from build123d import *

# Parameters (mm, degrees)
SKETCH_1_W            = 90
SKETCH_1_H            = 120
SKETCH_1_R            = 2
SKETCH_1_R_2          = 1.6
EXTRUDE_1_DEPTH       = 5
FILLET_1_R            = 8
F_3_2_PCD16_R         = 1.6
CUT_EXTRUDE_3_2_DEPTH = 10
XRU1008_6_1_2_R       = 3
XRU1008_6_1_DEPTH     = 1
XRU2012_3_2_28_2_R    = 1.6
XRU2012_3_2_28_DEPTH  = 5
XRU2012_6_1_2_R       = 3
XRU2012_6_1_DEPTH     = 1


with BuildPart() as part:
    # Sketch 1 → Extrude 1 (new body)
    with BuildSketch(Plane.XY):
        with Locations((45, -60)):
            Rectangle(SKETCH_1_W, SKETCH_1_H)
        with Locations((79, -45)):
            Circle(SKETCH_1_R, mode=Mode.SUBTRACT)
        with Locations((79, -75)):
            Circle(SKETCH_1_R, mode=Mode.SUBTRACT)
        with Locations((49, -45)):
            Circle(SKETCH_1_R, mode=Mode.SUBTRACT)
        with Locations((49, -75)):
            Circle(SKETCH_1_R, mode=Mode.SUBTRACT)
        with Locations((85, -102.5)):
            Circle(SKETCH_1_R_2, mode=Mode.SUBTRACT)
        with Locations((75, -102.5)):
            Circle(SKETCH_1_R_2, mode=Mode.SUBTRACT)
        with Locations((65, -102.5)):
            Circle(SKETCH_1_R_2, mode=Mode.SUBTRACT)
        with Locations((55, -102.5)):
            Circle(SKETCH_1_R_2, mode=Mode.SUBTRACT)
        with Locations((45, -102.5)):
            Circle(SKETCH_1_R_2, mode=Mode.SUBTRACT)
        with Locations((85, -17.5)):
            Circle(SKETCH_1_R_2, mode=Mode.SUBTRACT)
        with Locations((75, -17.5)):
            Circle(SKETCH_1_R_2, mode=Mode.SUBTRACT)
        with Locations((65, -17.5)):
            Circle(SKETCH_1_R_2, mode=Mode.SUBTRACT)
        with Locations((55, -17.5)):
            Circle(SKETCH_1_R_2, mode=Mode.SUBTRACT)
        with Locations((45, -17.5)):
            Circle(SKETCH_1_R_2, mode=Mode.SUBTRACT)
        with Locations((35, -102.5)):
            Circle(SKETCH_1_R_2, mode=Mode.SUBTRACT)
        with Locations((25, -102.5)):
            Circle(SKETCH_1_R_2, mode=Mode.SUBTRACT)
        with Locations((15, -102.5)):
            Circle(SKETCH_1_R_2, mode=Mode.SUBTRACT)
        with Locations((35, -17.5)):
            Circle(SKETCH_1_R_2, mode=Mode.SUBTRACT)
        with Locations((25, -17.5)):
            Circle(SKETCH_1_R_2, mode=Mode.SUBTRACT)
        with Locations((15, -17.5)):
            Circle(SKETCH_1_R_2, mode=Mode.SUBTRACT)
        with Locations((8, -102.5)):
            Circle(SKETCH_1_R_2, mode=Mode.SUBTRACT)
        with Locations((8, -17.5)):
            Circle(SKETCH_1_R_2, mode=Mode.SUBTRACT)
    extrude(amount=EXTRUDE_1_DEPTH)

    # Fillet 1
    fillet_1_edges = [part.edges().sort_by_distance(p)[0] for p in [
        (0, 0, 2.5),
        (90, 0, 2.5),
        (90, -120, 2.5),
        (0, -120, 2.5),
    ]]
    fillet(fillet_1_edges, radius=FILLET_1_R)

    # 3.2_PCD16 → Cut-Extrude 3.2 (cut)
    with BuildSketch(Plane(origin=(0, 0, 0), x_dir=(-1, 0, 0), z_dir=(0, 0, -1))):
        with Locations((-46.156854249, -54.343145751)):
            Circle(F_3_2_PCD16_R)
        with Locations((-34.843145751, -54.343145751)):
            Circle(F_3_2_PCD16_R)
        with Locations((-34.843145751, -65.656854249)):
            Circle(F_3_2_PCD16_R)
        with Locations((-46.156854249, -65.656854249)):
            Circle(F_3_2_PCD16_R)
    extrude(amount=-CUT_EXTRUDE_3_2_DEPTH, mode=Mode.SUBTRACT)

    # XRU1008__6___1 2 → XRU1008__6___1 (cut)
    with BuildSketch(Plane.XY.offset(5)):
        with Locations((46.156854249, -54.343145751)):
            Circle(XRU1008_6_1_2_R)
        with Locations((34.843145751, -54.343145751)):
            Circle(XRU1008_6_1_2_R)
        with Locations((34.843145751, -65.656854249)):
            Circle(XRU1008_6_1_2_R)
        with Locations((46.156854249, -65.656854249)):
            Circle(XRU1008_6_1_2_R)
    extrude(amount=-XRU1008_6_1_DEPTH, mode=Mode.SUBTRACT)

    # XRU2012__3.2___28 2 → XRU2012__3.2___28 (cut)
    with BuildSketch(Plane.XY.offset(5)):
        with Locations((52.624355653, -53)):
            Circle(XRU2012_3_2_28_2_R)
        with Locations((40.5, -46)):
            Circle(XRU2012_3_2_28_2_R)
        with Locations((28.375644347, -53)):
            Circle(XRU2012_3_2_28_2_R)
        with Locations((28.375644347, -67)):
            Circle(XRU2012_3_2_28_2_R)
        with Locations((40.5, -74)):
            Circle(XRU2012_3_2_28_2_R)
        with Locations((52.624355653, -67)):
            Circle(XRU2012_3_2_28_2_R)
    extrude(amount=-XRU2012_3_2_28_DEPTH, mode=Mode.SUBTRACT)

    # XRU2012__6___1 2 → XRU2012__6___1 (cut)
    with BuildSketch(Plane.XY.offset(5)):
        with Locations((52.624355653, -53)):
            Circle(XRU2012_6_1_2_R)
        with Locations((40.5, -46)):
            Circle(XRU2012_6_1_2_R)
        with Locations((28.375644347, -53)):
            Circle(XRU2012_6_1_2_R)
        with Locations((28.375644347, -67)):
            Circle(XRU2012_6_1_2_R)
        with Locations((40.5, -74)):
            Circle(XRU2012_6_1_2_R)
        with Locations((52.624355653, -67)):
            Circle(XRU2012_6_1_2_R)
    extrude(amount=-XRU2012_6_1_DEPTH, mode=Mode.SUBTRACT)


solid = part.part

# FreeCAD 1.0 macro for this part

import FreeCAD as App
import Part
import Sketcher
Q = App.Units.Quantity


def edges_at(feature, points):
    """Names of the edges that pass closest to the given points."""
    edges = feature.Shape.Edges
    near = lambda p: min(range(len(edges)), key=lambda i: edges[i].distToShape(Part.Vertex(*p))[0])
    return sorted({f"Edge{near(p) + 1}" for p in points})

doc = App.newDocument("Part")
body = doc.addObject("PartDesign::Body", "Body")

sketch1 = body.newObject("Sketcher::SketchObject", "Sketch")
sketch1.AttachmentSupport = (doc.getObject("XY_Plane"), [""])
sketch1.MapMode = "FlatFace"
sketch1.addGeometry(Part.LineSegment(App.Vector(0, 0, 0), App.Vector(0, -120, 0)), False)
sketch1.addGeometry(Part.LineSegment(App.Vector(0, -120, 0), App.Vector(90, -120, 0)), False)
sketch1.addGeometry(Part.LineSegment(App.Vector(90, -120, 0), App.Vector(90, 0, 0)), False)
sketch1.addGeometry(Part.LineSegment(App.Vector(90, 0, 0), App.Vector(0, 0, 0)), False)
sketch1.addGeometry(Part.Circle(App.Vector(8, -102.5, 0), App.Vector(0, 0, 1), 1.6), False)
sketch1.addGeometry(Part.Circle(App.Vector(15, -102.5, 0), App.Vector(0, 0, 1), 1.6), False)
sketch1.addGeometry(Part.Circle(App.Vector(25, -102.5, 0), App.Vector(0, 0, 1), 1.6), False)
sketch1.addGeometry(Part.Circle(App.Vector(35, -102.5, 0), App.Vector(0, 0, 1), 1.6), False)
sketch1.addGeometry(Part.Circle(App.Vector(45, -102.5, 0), App.Vector(0, 0, 1), 1.6), False)
sketch1.addGeometry(Part.Circle(App.Vector(55, -102.5, 0), App.Vector(0, 0, 1), 1.6), False)
sketch1.addGeometry(Part.Circle(App.Vector(65, -102.5, 0), App.Vector(0, 0, 1), 1.6), False)
sketch1.addGeometry(Part.Circle(App.Vector(75, -102.5, 0), App.Vector(0, 0, 1), 1.6), False)
sketch1.addGeometry(Part.Circle(App.Vector(85, -102.5, 0), App.Vector(0, 0, 1), 1.6), False)
sketch1.addGeometry(Part.Circle(App.Vector(49, -75, 0), App.Vector(0, 0, 1), 2), False)
sketch1.addGeometry(Part.Circle(App.Vector(79, -75, 0), App.Vector(0, 0, 1), 2), False)
sketch1.addGeometry(Part.Circle(App.Vector(8, -17.5, 0), App.Vector(0, 0, 1), 1.6), False)
sketch1.addGeometry(Part.Circle(App.Vector(15, -17.5, 0), App.Vector(0, 0, 1), 1.6), False)
sketch1.addGeometry(Part.Circle(App.Vector(25, -17.5, 0), App.Vector(0, 0, 1), 1.6), False)
sketch1.addGeometry(Part.Circle(App.Vector(35, -17.5, 0), App.Vector(0, 0, 1), 1.6), False)
sketch1.addGeometry(Part.Circle(App.Vector(45, -17.5, 0), App.Vector(0, 0, 1), 1.6), False)
sketch1.addGeometry(Part.Circle(App.Vector(49, -45, 0), App.Vector(0, 0, 1), 2), False)
sketch1.addGeometry(Part.Circle(App.Vector(79, -45, 0), App.Vector(0, 0, 1), 2), False)
sketch1.addGeometry(Part.Circle(App.Vector(55, -17.5, 0), App.Vector(0, 0, 1), 1.6), False)
sketch1.addGeometry(Part.Circle(App.Vector(65, -17.5, 0), App.Vector(0, 0, 1), 1.6), False)
sketch1.addGeometry(Part.Circle(App.Vector(75, -17.5, 0), App.Vector(0, 0, 1), 1.6), False)
sketch1.addGeometry(Part.Circle(App.Vector(85, -17.5, 0), App.Vector(0, 0, 1), 1.6), False)
sketch1.addConstraint(Sketcher.Constraint("Coincident", 0, 2, 1, 1))
sketch1.addConstraint(Sketcher.Constraint("Coincident", 1, 2, 2, 1))
sketch1.addConstraint(Sketcher.Constraint("Coincident", 2, 2, 3, 1))
sketch1.addConstraint(Sketcher.Constraint("Coincident", 3, 2, 0, 1))
sketch1.addConstraint(Sketcher.Constraint("Vertical", 0))
sketch1.addConstraint(Sketcher.Constraint("Horizontal", 1))
sketch1.addConstraint(Sketcher.Constraint("Vertical", 2))
sketch1.addConstraint(Sketcher.Constraint("Horizontal", 3))
sketch1.addConstraint(Sketcher.Constraint("Coincident", 3, 2, -1, 1))
sketch1.addConstraint(Sketcher.Constraint("Equal", 4, 5))
sketch1.addConstraint(Sketcher.Constraint("Equal", 5, 6))
sketch1.addConstraint(Sketcher.Constraint("Equal", 6, 7))
sketch1.addConstraint(Sketcher.Constraint("Equal", 7, 8))
sketch1.addConstraint(Sketcher.Constraint("Equal", 8, 9))
sketch1.addConstraint(Sketcher.Constraint("Equal", 9, 10))
sketch1.addConstraint(Sketcher.Constraint("Equal", 10, 11))
sketch1.addConstraint(Sketcher.Constraint("Equal", 11, 12))
sketch1.addConstraint(Sketcher.Constraint("Equal", 13, 14))
sketch1.addConstraint(Sketcher.Constraint("Equal", 12, 15))
sketch1.addConstraint(Sketcher.Constraint("Equal", 15, 16))
sketch1.addConstraint(Sketcher.Constraint("Equal", 16, 17))
sketch1.addConstraint(Sketcher.Constraint("Equal", 17, 18))
sketch1.addConstraint(Sketcher.Constraint("Equal", 18, 19))
sketch1.addConstraint(Sketcher.Constraint("Equal", 14, 20))
sketch1.addConstraint(Sketcher.Constraint("Equal", 20, 21))
sketch1.addConstraint(Sketcher.Constraint("Equal", 19, 22))
sketch1.addConstraint(Sketcher.Constraint("Equal", 22, 23))
sketch1.addConstraint(Sketcher.Constraint("Equal", 23, 24))
sketch1.addConstraint(Sketcher.Constraint("Equal", 24, 25))
sketch1.addConstraint(Sketcher.Constraint("Horizontal", 4, 3, 5, 3))
sketch1.addConstraint(Sketcher.Constraint("Horizontal", 5, 3, 6, 3))
sketch1.addConstraint(Sketcher.Constraint("Horizontal", 6, 3, 7, 3))
sketch1.addConstraint(Sketcher.Constraint("Horizontal", 7, 3, 8, 3))
sketch1.addConstraint(Sketcher.Constraint("Horizontal", 8, 3, 9, 3))
sketch1.addConstraint(Sketcher.Constraint("Horizontal", 9, 3, 10, 3))
sketch1.addConstraint(Sketcher.Constraint("Horizontal", 10, 3, 11, 3))
sketch1.addConstraint(Sketcher.Constraint("Horizontal", 11, 3, 12, 3))
sketch1.addConstraint(Sketcher.Constraint("Horizontal", 13, 3, 14, 3))
sketch1.addConstraint(Sketcher.Constraint("Horizontal", 15, 3, 16, 3))
sketch1.addConstraint(Sketcher.Constraint("Horizontal", 16, 3, 17, 3))
sketch1.addConstraint(Sketcher.Constraint("Horizontal", 17, 3, 18, 3))
sketch1.addConstraint(Sketcher.Constraint("Horizontal", 18, 3, 19, 3))
sketch1.addConstraint(Sketcher.Constraint("Horizontal", 20, 3, 21, 3))
sketch1.addConstraint(Sketcher.Constraint("Horizontal", 19, 3, 22, 3))
sketch1.addConstraint(Sketcher.Constraint("Horizontal", 22, 3, 23, 3))
sketch1.addConstraint(Sketcher.Constraint("Horizontal", 23, 3, 24, 3))
sketch1.addConstraint(Sketcher.Constraint("Horizontal", 24, 3, 25, 3))
sketch1.addConstraint(Sketcher.Constraint("Vertical", 4, 3, 15, 3))
sketch1.addConstraint(Sketcher.Constraint("Vertical", 5, 3, 16, 3))
sketch1.addConstraint(Sketcher.Constraint("Vertical", 6, 3, 17, 3))
sketch1.addConstraint(Sketcher.Constraint("Vertical", 7, 3, 18, 3))
sketch1.addConstraint(Sketcher.Constraint("Vertical", 8, 3, 19, 3))
sketch1.addConstraint(Sketcher.Constraint("Vertical", 13, 3, 20, 3))
sketch1.addConstraint(Sketcher.Constraint("Vertical", 14, 3, 21, 3))
sketch1.addConstraint(Sketcher.Constraint("Vertical", 9, 3, 22, 3))
sketch1.addConstraint(Sketcher.Constraint("Vertical", 10, 3, 23, 3))
sketch1.addConstraint(Sketcher.Constraint("Vertical", 11, 3, 24, 3))
sketch1.addConstraint(Sketcher.Constraint("Vertical", 12, 3, 25, 3))
sketch1.addConstraint(Sketcher.Constraint("Diameter", 13, Q("4 mm")))
sketch1.addConstraint(Sketcher.Constraint("Diameter", 4, Q("3.2 mm")))
sketch1.addConstraint(Sketcher.Constraint("DistanceX", 1, 1, 1, 2, Q("90 mm")))
sketch1.addConstraint(Sketcher.Constraint("DistanceY", 0, 2, 0, 1, Q("120 mm")))
sketch1.addConstraint(Sketcher.Constraint("DistanceX", -1, 1, 4, 3, Q("8 mm")))
sketch1.addConstraint(Sketcher.Constraint("DistanceX", -1, 1, 5, 3, Q("15 mm")))
sketch1.addConstraint(Sketcher.Constraint("DistanceX", -1, 1, 6, 3, Q("25 mm")))
sketch1.addConstraint(Sketcher.Constraint("DistanceX", -1, 1, 7, 3, Q("35 mm")))
sketch1.addConstraint(Sketcher.Constraint("DistanceX", -1, 1, 8, 3, Q("45 mm")))
sketch1.addConstraint(Sketcher.Constraint("DistanceX", -1, 1, 9, 3, Q("55 mm")))
sketch1.addConstraint(Sketcher.Constraint("DistanceX", -1, 1, 10, 3, Q("65 mm")))
sketch1.addConstraint(Sketcher.Constraint("DistanceX", -1, 1, 11, 3, Q("75 mm")))
sketch1.addConstraint(Sketcher.Constraint("DistanceX", -1, 1, 12, 3, Q("85 mm")))
sketch1.addConstraint(Sketcher.Constraint("DistanceX", -1, 1, 13, 3, Q("49 mm")))
sketch1.addConstraint(Sketcher.Constraint("DistanceY", 13, 3, -1, 1, Q("75 mm")))
sketch1.addConstraint(Sketcher.Constraint("DistanceX", -1, 1, 14, 3, Q("79 mm")))
sketch1.addConstraint(Sketcher.Constraint("DistanceY", 20, 3, -1, 1, Q("45 mm")))
sketch1.addConstraint(Sketcher.Constraint("DistanceY", 4, 3, 15, 3, Q("85 mm")))
sketch1.addConstraint(Sketcher.Constraint("DistanceY", 4, 3, -1, 1, Q("102.5 mm")))
pad1 = body.newObject("PartDesign::Pad", "Pad")
pad1.Profile = sketch1
pad1.Length = 5
doc.recompute()

fillet = body.newObject("PartDesign::Fillet", "Fillet")
fillet.Base = (pad1, edges_at(pad1, [
    (0, 0, 2.5),
    (90, 0, 2.5),
    (90, -120, 2.5),
    (0, -120, 2.5),
]))
fillet.Radius = 8

sketch2 = body.newObject("Sketcher::SketchObject", "Sketch001")
sketch2.AttachmentSupport = (doc.getObject("XY_Plane"), [""])
sketch2.MapMode = "FlatFace"
sketch2.addGeometry(Part.Circle(App.Vector(46.156854, -54.343146, 0), App.Vector(0, 0, 1), 1.6), False)
sketch2.addGeometry(Part.Circle(App.Vector(34.843146, -54.343146, 0), App.Vector(0, 0, 1), 1.6), False)
sketch2.addGeometry(Part.Circle(App.Vector(34.843146, -65.656854, 0), App.Vector(0, 0, 1), 1.6), False)
sketch2.addGeometry(Part.Circle(App.Vector(46.156854, -65.656854, 0), App.Vector(0, 0, 1), 1.6), False)
sketch2.addConstraint(Sketcher.Constraint("Equal", 0, 1))
sketch2.addConstraint(Sketcher.Constraint("Equal", 1, 2))
sketch2.addConstraint(Sketcher.Constraint("Equal", 2, 3))
sketch2.addConstraint(Sketcher.Constraint("Horizontal", 0, 3, 1, 3))
sketch2.addConstraint(Sketcher.Constraint("Horizontal", 2, 3, 3, 3))
sketch2.addConstraint(Sketcher.Constraint("Vertical", 1, 3, 2, 3))
sketch2.addConstraint(Sketcher.Constraint("Vertical", 0, 3, 3, 3))
sketch2.addConstraint(Sketcher.Constraint("Diameter", 0, Q("3.2 mm")))
sketch2.addConstraint(Sketcher.Constraint("DistanceX", 1, 3, 0, 3, Q("11.313708 mm")))
sketch2.addConstraint(Sketcher.Constraint("DistanceY", 2, 3, 1, 3, Q("11.313708 mm")))
sketch2.addConstraint(Sketcher.Constraint("DistanceX", -1, 1, 0, 3, Q("46.156854 mm")))
sketch2.addConstraint(Sketcher.Constraint("DistanceY", 0, 3, -1, 1, Q("54.343146 mm")))
pocket1 = body.newObject("PartDesign::Pocket", "Pocket")
pocket1.Profile = sketch2
pocket1.Length = 10
pocket1.Reversed = True

sketch3 = body.newObject("Sketcher::SketchObject", "Sketch002")
sketch3.AttachmentSupport = (doc.getObject("XY_Plane"), [""])
sketch3.MapMode = "FlatFace"
sketch3.AttachmentOffset = App.Placement(App.Vector(0, 0, 5), App.Rotation())
sketch3.addGeometry(Part.Circle(App.Vector(46.156854, -54.343146, 0), App.Vector(0, 0, 1), 3), False)
sketch3.addGeometry(Part.Circle(App.Vector(34.843146, -54.343146, 0), App.Vector(0, 0, 1), 3), False)
sketch3.addGeometry(Part.Circle(App.Vector(34.843146, -65.656854, 0), App.Vector(0, 0, 1), 3), False)
sketch3.addGeometry(Part.Circle(App.Vector(46.156854, -65.656854, 0), App.Vector(0, 0, 1), 3), False)
sketch3.addConstraint(Sketcher.Constraint("Equal", 0, 1))
sketch3.addConstraint(Sketcher.Constraint("Equal", 1, 2))
sketch3.addConstraint(Sketcher.Constraint("Equal", 2, 3))
sketch3.addConstraint(Sketcher.Constraint("Horizontal", 0, 3, 1, 3))
sketch3.addConstraint(Sketcher.Constraint("Horizontal", 2, 3, 3, 3))
sketch3.addConstraint(Sketcher.Constraint("Vertical", 1, 3, 2, 3))
sketch3.addConstraint(Sketcher.Constraint("Vertical", 0, 3, 3, 3))
sketch3.addConstraint(Sketcher.Constraint("Diameter", 0, Q("6 mm")))
sketch3.addConstraint(Sketcher.Constraint("DistanceX", 1, 3, 0, 3, Q("11.313708 mm")))
sketch3.addConstraint(Sketcher.Constraint("DistanceY", 2, 3, 1, 3, Q("11.313708 mm")))
sketch3.addConstraint(Sketcher.Constraint("DistanceX", -1, 1, 0, 3, Q("46.156854 mm")))
sketch3.addConstraint(Sketcher.Constraint("DistanceY", 0, 3, -1, 1, Q("54.343146 mm")))
pocket2 = body.newObject("PartDesign::Pocket", "Pocket001")
pocket2.Profile = sketch3
pocket2.Length = 1

sketch4 = body.newObject("Sketcher::SketchObject", "Sketch003")
sketch4.AttachmentSupport = (doc.getObject("XY_Plane"), [""])
sketch4.MapMode = "FlatFace"
sketch4.AttachmentOffset = App.Placement(App.Vector(0, 0, 5), App.Rotation())
sketch4.addGeometry(Part.Circle(App.Vector(52.624356, -53, 0), App.Vector(0, 0, 1), 1.6), False)
sketch4.addGeometry(Part.Circle(App.Vector(40.5, -46, 0), App.Vector(0, 0, 1), 1.6), False)
sketch4.addGeometry(Part.Circle(App.Vector(28.375644, -53, 0), App.Vector(0, 0, 1), 1.6), False)
sketch4.addGeometry(Part.Circle(App.Vector(28.375644, -67, 0), App.Vector(0, 0, 1), 1.6), False)
sketch4.addGeometry(Part.Circle(App.Vector(40.5, -74, 0), App.Vector(0, 0, 1), 1.6), False)
sketch4.addGeometry(Part.Circle(App.Vector(52.624356, -67, 0), App.Vector(0, 0, 1), 1.6), False)
sketch4.addConstraint(Sketcher.Constraint("Equal", 0, 1))
sketch4.addConstraint(Sketcher.Constraint("Equal", 1, 2))
sketch4.addConstraint(Sketcher.Constraint("Equal", 2, 3))
sketch4.addConstraint(Sketcher.Constraint("Equal", 3, 4))
sketch4.addConstraint(Sketcher.Constraint("Equal", 4, 5))
sketch4.addConstraint(Sketcher.Constraint("Horizontal", 0, 3, 2, 3))
sketch4.addConstraint(Sketcher.Constraint("Horizontal", 3, 3, 5, 3))
sketch4.addConstraint(Sketcher.Constraint("Vertical", 2, 3, 3, 3))
sketch4.addConstraint(Sketcher.Constraint("Vertical", 1, 3, 4, 3))
sketch4.addConstraint(Sketcher.Constraint("Vertical", 0, 3, 5, 3))
sketch4.addConstraint(Sketcher.Constraint("Diameter", 0, Q("3.2 mm")))
sketch4.addConstraint(Sketcher.Constraint("DistanceY", 0, 3, -1, 1, Q("53 mm")))
sketch4.addConstraint(Sketcher.Constraint("DistanceY", 1, 3, -1, 1, Q("46 mm")))
sketch4.addConstraint(Sketcher.Constraint("DistanceY", 3, 3, -1, 1, Q("67 mm")))
sketch4.addConstraint(Sketcher.Constraint("DistanceY", 4, 3, -1, 1, Q("74 mm")))
sketch4.addConstraint(Sketcher.Constraint("DistanceX", -1, 1, 1, 3, Q("40.5 mm")))
sketch4.addConstraint(Sketcher.Constraint("DistanceX", 2, 3, 0, 3, Q("24.248711 mm")))
sketch4.addConstraint(Sketcher.Constraint("DistanceX", -1, 1, 0, 3, Q("52.624356 mm")))
pocket3 = body.newObject("PartDesign::Pocket", "Pocket002")
pocket3.Profile = sketch4
pocket3.Length = 5

sketch5 = body.newObject("Sketcher::SketchObject", "Sketch004")
sketch5.AttachmentSupport = (doc.getObject("XY_Plane"), [""])
sketch5.MapMode = "FlatFace"
sketch5.AttachmentOffset = App.Placement(App.Vector(0, 0, 5), App.Rotation())
sketch5.addGeometry(Part.Circle(App.Vector(52.624356, -53, 0), App.Vector(0, 0, 1), 3), False)
sketch5.addGeometry(Part.Circle(App.Vector(40.5, -46, 0), App.Vector(0, 0, 1), 3), False)
sketch5.addGeometry(Part.Circle(App.Vector(28.375644, -53, 0), App.Vector(0, 0, 1), 3), False)
sketch5.addGeometry(Part.Circle(App.Vector(28.375644, -67, 0), App.Vector(0, 0, 1), 3), False)
sketch5.addGeometry(Part.Circle(App.Vector(40.5, -74, 0), App.Vector(0, 0, 1), 3), False)
sketch5.addGeometry(Part.Circle(App.Vector(52.624356, -67, 0), App.Vector(0, 0, 1), 3), False)
sketch5.addConstraint(Sketcher.Constraint("Equal", 0, 1))
sketch5.addConstraint(Sketcher.Constraint("Equal", 1, 2))
sketch5.addConstraint(Sketcher.Constraint("Equal", 2, 3))
sketch5.addConstraint(Sketcher.Constraint("Equal", 3, 4))
sketch5.addConstraint(Sketcher.Constraint("Equal", 4, 5))
sketch5.addConstraint(Sketcher.Constraint("Horizontal", 0, 3, 2, 3))
sketch5.addConstraint(Sketcher.Constraint("Horizontal", 3, 3, 5, 3))
sketch5.addConstraint(Sketcher.Constraint("Vertical", 2, 3, 3, 3))
sketch5.addConstraint(Sketcher.Constraint("Vertical", 1, 3, 4, 3))
sketch5.addConstraint(Sketcher.Constraint("Vertical", 0, 3, 5, 3))
sketch5.addConstraint(Sketcher.Constraint("Diameter", 0, Q("6 mm")))
sketch5.addConstraint(Sketcher.Constraint("DistanceY", 0, 3, -1, 1, Q("53 mm")))
sketch5.addConstraint(Sketcher.Constraint("DistanceY", 1, 3, -1, 1, Q("46 mm")))
sketch5.addConstraint(Sketcher.Constraint("DistanceY", 3, 3, -1, 1, Q("67 mm")))
sketch5.addConstraint(Sketcher.Constraint("DistanceY", 4, 3, -1, 1, Q("74 mm")))
sketch5.addConstraint(Sketcher.Constraint("DistanceX", -1, 1, 1, 3, Q("40.5 mm")))
sketch5.addConstraint(Sketcher.Constraint("DistanceX", 2, 3, 0, 3, Q("24.248711 mm")))
sketch5.addConstraint(Sketcher.Constraint("DistanceX", -1, 1, 0, 3, Q("52.624356 mm")))
pocket4 = body.newObject("PartDesign::Pocket", "Pocket003")
pocket4.Profile = sketch5
pocket4.Length = 1

doc.recompute()
